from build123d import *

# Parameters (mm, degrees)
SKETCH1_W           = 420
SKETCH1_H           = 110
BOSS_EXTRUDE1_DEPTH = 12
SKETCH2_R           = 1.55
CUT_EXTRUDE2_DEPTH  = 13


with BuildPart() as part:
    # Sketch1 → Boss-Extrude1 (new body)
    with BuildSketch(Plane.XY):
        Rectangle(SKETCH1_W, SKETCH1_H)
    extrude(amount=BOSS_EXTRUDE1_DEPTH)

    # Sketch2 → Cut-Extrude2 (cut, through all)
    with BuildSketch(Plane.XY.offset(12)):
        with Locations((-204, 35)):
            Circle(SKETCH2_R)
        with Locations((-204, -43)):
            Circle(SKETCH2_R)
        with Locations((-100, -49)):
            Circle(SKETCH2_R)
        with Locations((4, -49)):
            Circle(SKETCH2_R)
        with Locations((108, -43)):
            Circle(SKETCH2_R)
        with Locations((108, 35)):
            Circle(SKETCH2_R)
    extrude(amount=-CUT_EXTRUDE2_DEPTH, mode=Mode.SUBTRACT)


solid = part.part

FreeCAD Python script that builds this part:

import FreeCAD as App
import Part
import Sketcher

V = App.Vector

doc = App.newDocument("Part")
body = doc.addObject("PartDesign::Body", "Body")

sketch1 = body.newObject("Sketcher::SketchObject", "Sketch")
sketch1.AttachmentSupport = (doc.getObject("XY_Plane"), [""])
sketch1.MapMode = "FlatFace"
sketch1.addGeometry([
    Part.LineSegment(V(-210, 55, 0), V(-210, -55, 0)),
    Part.LineSegment(V(-210, -55, 0), V(210, -55, 0)),
    Part.LineSegment(V(210, -55, 0), V(210, 55, 0)),
    Part.LineSegment(V(210, 55, 0), V(-210, 55, 0)),
], False)
sketch1.addConstraint([
    Sketcher.Constraint("Coincident", 0, 2, 1, 1),
    Sketcher.Constraint("Coincident", 1, 2, 2, 1),
    Sketcher.Constraint("Coincident", 2, 2, 3, 1),
    Sketcher.Constraint("Coincident", 3, 2, 0, 1),
    Sketcher.Constraint("Vertical", 0),
    Sketcher.Constraint("Horizontal", 1),
    Sketcher.Constraint("Vertical", 2),
    Sketcher.Constraint("Horizontal", 3),
    Sketcher.Constraint("Symmetric", 0, 2, 2, 2, -1, 1),
    Sketcher.Constraint("DistanceX", 1, 1, 1, 2, 420.0),
    Sketcher.Constraint("DistanceY", 0, 2, 0, 1, 110.0),
])
pad1 = body.newObject("PartDesign::Pad", "Pad")
pad1.Profile = sketch1
pad1.Length = 12

sketch2 = body.newObject("Sketcher::SketchObject", "Sketch001")
sketch2.AttachmentSupport = (doc.getObject("XY_Plane"), [""])
sketch2.MapMode = "FlatFace"
sketch2.AttachmentOffset = App.Placement(V(0, 0, 12), App.Rotation())
sketch2.addGeometry([
    Part.Circle(V(-204, 35, 0), V(0, 0, 1), 1.6),
    Part.Circle(V(-204, -43, 0), V(0, 0, 1), 1.6),
    Part.Circle(V(-100, -49, 0), V(0, 0, 1), 1.6),
    Part.Circle(V(4, -49, 0), V(0, 0, 1), 1.6),
    Part.Circle(V(108, -43, 0), V(0, 0, 1), 1.6),
    Part.Circle(V(108, 35, 0), V(0, 0, 1), 1.6),
], False)
sketch2.addConstraint([
    Sketcher.Constraint("Equal", 0, 1),
    Sketcher.Constraint("Equal", 1, 2),
    Sketcher.Constraint("Equal", 2, 3),
    Sketcher.Constraint("Equal", 3, 4),
    Sketcher.Constraint("Equal", 4, 5),
    Sketcher.Constraint("Horizontal", 2, 3, 3, 3),
    Sketcher.Constraint("Horizontal", 1, 3, 4, 3),
    Sketcher.Constraint("Horizontal", 0, 3, 5, 3),
    Sketcher.Constraint("Vertical", 0, 3, 1, 3),
    Sketcher.Constraint("Vertical", 4, 3, 5, 3),
    Sketcher.Constraint("Diameter", 0, 3.1),
    Sketcher.Constraint("DistanceX", 0, 3, -1, 1, 204.0),
    Sketcher.Constraint("DistanceY", -1, 1, 0, 3, 35.0),
    Sketcher.Constraint("DistanceY", 1, 3, -1, 1, 43.0),
    Sketcher.Constraint("DistanceX", 2, 3, -1, 1, 100.0),
    Sketcher.Constraint("DistanceY", 2, 3, -1, 1, 49.0),
    Sketcher.Constraint("DistanceX", -1, 1, 3, 3, 4.0),
    Sketcher.Constraint("DistanceX", -1, 1, 4, 3, 108.0),
])
pocket1 = body.newObject("PartDesign::Pocket", "Pocket")
pocket1.Profile = sketch2
pocket1.Type = "ThroughAll"

doc.recompute()
